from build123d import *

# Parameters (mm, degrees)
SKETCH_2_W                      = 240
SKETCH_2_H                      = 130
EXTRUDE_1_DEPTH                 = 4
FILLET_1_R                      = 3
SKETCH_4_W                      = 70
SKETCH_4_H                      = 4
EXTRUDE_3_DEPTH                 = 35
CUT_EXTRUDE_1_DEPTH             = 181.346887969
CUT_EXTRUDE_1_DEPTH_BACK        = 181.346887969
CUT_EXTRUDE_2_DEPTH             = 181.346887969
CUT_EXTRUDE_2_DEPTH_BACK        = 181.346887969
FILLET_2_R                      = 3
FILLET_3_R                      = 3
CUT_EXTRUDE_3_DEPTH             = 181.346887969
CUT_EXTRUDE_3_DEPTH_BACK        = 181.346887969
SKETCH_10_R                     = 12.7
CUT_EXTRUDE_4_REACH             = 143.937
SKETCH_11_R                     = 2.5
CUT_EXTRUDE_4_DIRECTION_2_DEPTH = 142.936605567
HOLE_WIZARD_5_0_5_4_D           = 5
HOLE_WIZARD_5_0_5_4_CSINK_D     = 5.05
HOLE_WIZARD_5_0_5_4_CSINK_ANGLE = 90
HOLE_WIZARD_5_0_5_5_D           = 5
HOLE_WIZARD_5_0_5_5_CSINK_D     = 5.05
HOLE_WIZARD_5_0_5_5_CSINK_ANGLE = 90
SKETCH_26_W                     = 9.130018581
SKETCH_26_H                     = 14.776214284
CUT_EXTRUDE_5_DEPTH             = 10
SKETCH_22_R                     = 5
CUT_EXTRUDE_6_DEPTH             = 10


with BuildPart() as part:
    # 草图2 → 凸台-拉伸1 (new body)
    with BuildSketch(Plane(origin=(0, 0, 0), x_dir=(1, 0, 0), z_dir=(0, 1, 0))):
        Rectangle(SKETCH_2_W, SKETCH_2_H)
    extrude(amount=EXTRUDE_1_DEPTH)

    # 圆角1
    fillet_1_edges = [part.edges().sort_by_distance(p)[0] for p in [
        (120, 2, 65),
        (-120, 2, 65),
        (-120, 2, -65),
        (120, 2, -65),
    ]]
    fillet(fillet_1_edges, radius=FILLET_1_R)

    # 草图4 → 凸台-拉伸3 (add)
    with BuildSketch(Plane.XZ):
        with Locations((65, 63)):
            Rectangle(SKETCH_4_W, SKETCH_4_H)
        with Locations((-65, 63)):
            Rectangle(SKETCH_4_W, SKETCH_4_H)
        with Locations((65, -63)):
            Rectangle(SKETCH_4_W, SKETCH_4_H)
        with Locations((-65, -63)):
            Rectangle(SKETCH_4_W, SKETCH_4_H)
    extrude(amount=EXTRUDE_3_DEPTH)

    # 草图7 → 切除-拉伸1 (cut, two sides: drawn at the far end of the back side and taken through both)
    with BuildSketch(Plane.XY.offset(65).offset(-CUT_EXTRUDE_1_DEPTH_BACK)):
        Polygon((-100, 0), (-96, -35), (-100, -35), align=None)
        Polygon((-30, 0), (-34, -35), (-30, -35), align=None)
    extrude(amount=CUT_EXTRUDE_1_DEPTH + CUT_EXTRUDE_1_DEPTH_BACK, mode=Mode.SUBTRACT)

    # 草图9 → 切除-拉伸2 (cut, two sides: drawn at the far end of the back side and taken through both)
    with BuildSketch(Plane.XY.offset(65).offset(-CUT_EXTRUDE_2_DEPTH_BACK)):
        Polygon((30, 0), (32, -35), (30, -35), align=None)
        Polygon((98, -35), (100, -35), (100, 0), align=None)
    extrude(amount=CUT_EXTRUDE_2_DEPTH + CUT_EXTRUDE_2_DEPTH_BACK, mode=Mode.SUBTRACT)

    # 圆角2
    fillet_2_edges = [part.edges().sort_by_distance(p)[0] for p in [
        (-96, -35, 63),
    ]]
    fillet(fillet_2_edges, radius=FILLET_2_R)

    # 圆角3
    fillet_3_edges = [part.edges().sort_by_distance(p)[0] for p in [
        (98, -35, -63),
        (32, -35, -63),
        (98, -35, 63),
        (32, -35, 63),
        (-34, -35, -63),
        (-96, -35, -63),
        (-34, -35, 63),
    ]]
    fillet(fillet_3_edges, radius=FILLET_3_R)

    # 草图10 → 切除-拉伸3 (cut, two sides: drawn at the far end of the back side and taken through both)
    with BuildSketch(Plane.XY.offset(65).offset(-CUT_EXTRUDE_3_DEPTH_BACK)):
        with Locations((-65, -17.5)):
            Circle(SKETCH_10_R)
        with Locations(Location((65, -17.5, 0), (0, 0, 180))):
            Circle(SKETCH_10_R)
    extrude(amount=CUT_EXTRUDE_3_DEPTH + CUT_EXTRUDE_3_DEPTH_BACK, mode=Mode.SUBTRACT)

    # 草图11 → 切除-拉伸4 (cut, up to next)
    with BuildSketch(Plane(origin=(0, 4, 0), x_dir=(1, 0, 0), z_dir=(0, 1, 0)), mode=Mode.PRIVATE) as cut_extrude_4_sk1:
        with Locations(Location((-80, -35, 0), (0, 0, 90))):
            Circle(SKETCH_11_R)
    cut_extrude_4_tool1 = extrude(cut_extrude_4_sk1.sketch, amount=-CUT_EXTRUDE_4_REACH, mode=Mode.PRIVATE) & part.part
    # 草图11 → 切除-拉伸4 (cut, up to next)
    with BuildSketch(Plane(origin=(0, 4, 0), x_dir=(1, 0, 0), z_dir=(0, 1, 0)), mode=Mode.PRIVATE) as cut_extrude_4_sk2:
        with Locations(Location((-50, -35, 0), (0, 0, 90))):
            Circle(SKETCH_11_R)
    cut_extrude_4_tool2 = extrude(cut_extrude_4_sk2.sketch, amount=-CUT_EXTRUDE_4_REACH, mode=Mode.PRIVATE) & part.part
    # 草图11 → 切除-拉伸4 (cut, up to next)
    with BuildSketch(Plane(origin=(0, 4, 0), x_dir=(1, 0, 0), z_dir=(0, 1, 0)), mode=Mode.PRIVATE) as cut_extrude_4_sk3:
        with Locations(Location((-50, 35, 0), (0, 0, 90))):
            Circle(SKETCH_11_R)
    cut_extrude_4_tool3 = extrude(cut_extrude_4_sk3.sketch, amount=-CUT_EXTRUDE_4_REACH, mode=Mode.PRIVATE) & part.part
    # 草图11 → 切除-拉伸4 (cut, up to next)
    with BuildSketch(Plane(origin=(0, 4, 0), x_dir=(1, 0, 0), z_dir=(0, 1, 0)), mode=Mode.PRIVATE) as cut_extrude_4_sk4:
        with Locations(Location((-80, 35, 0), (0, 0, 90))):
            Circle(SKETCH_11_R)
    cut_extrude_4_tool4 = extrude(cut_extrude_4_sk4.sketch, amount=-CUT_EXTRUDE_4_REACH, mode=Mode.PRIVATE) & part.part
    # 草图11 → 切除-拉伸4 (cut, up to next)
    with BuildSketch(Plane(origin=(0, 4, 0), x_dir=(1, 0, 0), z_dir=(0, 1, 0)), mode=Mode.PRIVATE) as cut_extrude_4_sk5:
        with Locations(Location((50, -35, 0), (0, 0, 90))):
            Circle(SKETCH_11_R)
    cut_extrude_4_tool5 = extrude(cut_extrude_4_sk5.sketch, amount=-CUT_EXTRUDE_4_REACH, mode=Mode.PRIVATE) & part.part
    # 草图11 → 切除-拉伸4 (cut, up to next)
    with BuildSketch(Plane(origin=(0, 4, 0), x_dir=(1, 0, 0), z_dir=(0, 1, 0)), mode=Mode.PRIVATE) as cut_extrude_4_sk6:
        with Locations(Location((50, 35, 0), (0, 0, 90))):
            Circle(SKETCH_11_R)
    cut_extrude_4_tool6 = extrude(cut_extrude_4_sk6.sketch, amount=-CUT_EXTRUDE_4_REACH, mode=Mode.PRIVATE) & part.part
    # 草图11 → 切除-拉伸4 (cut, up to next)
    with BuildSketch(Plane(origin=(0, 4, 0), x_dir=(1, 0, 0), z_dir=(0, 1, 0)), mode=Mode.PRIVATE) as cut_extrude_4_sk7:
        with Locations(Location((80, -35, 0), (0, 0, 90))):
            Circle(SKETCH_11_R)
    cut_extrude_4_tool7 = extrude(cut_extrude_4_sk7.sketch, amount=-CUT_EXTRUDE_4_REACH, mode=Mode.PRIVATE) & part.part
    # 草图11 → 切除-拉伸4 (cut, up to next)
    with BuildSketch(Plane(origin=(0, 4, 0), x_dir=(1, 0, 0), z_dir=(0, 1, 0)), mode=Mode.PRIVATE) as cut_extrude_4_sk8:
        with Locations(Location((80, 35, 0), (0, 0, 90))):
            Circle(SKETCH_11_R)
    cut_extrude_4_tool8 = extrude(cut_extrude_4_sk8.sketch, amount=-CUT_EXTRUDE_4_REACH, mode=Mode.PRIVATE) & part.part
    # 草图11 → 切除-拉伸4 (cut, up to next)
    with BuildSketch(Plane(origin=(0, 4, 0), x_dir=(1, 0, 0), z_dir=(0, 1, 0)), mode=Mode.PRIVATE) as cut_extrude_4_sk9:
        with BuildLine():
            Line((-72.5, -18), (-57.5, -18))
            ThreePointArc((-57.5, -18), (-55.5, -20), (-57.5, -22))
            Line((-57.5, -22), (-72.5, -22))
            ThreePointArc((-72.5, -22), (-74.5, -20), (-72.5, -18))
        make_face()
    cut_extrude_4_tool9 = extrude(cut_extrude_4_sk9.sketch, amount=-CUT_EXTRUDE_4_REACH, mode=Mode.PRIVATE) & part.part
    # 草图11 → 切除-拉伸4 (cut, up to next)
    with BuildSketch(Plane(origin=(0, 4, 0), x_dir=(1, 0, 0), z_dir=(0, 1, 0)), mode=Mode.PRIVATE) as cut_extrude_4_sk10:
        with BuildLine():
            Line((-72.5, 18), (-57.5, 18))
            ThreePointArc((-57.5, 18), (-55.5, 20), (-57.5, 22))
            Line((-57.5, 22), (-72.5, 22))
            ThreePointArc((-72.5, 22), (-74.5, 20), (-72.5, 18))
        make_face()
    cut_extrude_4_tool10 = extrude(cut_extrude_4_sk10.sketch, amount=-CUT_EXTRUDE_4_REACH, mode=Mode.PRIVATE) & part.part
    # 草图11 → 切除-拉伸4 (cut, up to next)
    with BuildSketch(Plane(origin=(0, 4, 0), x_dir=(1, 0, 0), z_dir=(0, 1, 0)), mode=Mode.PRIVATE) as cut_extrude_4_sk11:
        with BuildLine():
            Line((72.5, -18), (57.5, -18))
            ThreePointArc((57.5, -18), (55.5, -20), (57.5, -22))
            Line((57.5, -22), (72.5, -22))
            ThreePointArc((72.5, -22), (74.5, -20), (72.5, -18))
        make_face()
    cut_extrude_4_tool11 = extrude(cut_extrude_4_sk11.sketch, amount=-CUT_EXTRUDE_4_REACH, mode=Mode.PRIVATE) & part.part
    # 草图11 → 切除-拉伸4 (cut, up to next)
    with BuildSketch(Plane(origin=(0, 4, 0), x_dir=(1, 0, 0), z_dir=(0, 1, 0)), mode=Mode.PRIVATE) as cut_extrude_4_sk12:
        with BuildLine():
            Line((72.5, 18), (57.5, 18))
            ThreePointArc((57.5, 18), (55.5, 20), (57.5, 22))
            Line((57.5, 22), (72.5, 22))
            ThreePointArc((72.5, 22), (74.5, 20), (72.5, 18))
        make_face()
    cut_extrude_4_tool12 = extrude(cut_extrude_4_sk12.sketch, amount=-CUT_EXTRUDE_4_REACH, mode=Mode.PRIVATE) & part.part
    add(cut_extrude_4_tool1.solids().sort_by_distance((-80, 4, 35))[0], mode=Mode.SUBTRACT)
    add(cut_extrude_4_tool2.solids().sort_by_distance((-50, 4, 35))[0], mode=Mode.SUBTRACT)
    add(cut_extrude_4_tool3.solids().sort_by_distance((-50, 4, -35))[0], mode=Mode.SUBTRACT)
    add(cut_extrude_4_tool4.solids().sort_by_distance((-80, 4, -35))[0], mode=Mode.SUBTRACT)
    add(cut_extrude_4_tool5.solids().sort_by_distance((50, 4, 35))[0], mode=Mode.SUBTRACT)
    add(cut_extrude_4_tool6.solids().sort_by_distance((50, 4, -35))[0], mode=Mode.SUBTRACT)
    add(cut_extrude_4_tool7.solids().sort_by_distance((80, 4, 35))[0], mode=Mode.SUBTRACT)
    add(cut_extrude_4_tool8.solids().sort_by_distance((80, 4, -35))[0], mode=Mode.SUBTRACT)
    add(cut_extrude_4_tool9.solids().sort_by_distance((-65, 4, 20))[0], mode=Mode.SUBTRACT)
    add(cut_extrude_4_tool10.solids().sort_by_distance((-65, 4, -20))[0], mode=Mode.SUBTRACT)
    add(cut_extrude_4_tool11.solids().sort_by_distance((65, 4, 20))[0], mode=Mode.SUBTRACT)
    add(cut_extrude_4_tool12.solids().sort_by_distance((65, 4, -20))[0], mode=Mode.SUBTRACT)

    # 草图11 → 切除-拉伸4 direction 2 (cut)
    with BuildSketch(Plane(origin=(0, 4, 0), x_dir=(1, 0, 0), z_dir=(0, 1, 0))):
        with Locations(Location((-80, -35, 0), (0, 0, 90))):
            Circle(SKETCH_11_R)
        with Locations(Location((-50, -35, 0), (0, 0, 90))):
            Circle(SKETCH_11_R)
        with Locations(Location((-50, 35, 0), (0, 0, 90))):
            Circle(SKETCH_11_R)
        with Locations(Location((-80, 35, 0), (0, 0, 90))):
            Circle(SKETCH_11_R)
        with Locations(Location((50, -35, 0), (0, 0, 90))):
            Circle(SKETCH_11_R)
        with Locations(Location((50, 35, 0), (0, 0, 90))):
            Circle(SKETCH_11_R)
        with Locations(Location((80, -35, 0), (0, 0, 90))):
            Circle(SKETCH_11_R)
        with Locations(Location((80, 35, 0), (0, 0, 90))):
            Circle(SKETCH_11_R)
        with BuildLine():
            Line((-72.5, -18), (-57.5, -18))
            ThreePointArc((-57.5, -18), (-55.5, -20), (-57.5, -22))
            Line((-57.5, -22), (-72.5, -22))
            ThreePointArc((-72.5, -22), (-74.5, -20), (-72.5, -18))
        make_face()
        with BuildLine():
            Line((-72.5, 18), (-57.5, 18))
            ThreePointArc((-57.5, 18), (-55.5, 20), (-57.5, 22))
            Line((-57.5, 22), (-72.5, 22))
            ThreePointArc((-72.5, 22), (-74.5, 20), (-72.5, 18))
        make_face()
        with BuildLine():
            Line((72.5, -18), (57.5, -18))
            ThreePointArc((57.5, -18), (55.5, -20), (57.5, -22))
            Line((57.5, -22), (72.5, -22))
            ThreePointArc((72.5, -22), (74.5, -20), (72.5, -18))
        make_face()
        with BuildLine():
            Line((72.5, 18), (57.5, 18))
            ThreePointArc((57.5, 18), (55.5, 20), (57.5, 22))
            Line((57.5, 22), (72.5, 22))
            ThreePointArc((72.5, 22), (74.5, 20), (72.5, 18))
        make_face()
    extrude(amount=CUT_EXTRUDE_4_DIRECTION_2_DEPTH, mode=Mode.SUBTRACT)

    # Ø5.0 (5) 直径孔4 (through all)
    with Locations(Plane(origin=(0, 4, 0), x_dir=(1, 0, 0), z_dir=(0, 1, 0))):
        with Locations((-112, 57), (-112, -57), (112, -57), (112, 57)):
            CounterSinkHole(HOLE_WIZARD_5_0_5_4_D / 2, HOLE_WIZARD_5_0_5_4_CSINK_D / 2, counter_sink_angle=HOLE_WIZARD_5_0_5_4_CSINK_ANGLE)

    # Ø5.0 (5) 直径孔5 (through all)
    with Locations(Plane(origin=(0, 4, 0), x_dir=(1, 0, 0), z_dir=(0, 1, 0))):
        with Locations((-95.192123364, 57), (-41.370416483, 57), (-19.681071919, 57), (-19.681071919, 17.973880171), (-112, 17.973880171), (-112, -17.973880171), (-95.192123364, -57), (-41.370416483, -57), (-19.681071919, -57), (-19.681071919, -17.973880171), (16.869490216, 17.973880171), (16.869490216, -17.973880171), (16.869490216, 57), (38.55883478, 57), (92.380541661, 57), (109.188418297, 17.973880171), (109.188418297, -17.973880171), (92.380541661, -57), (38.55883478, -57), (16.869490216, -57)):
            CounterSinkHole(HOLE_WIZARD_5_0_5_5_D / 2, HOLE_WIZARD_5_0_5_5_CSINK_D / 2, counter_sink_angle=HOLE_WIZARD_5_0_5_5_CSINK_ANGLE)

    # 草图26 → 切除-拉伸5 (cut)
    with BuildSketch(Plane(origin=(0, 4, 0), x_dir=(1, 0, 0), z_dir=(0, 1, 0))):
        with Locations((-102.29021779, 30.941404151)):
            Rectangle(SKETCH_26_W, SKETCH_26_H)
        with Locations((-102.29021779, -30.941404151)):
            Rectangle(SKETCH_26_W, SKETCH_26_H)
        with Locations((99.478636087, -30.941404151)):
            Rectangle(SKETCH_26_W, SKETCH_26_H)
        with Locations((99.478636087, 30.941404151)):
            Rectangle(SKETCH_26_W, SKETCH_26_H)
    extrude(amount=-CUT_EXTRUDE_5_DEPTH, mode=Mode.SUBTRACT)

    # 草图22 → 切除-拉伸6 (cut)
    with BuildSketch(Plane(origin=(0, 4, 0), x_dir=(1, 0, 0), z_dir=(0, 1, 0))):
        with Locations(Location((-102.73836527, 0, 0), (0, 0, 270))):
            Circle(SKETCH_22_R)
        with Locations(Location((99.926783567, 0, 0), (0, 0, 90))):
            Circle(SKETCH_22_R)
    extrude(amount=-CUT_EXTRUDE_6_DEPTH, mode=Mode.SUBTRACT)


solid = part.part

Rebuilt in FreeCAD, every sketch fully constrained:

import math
import FreeCAD as App
import Part
import Sketcher
from FreeCAD import Vector


def edges_at(feature, points):
    """Names of the edges that pass closest to the given points."""
    edges = feature.Shape.Edges
    near = lambda p: min(range(len(edges)), key=lambda i: edges[i].distToShape(Part.Vertex(*p))[0])
    return sorted({f"Edge{near(p) + 1}" for p in points})

doc = App.newDocument("Part")
body = doc.addObject("PartDesign::Body", "Body")

# Sketch on XZ plane
sketch1 = body.newObject("Sketcher::SketchObject", "Sketch")
sketch1.AttachmentSupport = (doc.getObject("XZ_Plane"), [""])
sketch1.MapMode = "FlatFace"
sketch1.addGeometry([
    Part.LineSegment(Vector(-120, -65, 0), Vector(-120, 65, 0)),
    Part.LineSegment(Vector(-120, 65, 0), Vector(120, 65, 0)),
    Part.LineSegment(Vector(120, 65, 0), Vector(120, -65, 0)),
    Part.LineSegment(Vector(120, -65, 0), Vector(-120, -65, 0)),
], False)
sketch1.addConstraint([
    Sketcher.Constraint("Coincident", 0, 2, 1, 1),
    Sketcher.Constraint("Coincident", 1, 2, 2, 1),
    Sketcher.Constraint("Coincident", 2, 2, 3, 1),
    Sketcher.Constraint("Coincident", 3, 2, 0, 1),
    Sketcher.Constraint("Vertical", 0),
    Sketcher.Constraint("Horizontal", 1),
    Sketcher.Constraint("Vertical", 2),
    Sketcher.Constraint("Horizontal", 3),
    Sketcher.Constraint("Symmetric", 0, 2, 2, 2, -1, 1),
    Sketcher.Constraint("DistanceX", 1, 1, 1, 2, 240.0),
    Sketcher.Constraint("DistanceY", 0, 1, 0, 2, 130.0),
])
pad1 = body.newObject("PartDesign::Pad", "Pad")
pad1.Profile = sketch1
pad1.Length = 4
pad1.Reversed = True
doc.recompute()

fillet = body.newObject("PartDesign::Fillet", "Fillet")
fillet.Base = (pad1, edges_at(pad1, [
    (120, 2, 65),
    (-120, 2, 65),
    (-120, 2, -65),
    (120, 2, -65),
]))
fillet.Radius = 3

# Sketch on XZ plane
sketch2 = body.newObject("Sketcher::SketchObject", "Sketch001")
sketch2.AttachmentSupport = (doc.getObject("XZ_Plane"), [""])
sketch2.MapMode = "FlatFace"
sketch2.addGeometry([
    Part.LineSegment(Vector(30, 65, 0), Vector(30, 61, 0)),  # 0
    Part.LineSegment(Vector(30, 61, 0), Vector(100, 61, 0)),  # 1
    Part.LineSegment(Vector(100, 61, 0), Vector(100, 65, 0)),  # 2
    Part.LineSegment(Vector(100, 65, 0), Vector(30, 65, 0)),  # 3
    Part.LineSegment(Vector(-100, 65, 0), Vector(-100, 61, 0)),  # 4
    Part.LineSegment(Vector(-100, 61, 0), Vector(-30, 61, 0)),  # 5
    Part.LineSegment(Vector(-30, 61, 0), Vector(-30, 65, 0)),  # 6
    Part.LineSegment(Vector(-30, 65, 0), Vector(-100, 65, 0)),  # 7
    Part.LineSegment(Vector(30, -61, 0), Vector(30, -65, 0)),  # 8
    Part.LineSegment(Vector(30, -65, 0), Vector(100, -65, 0)),  # 9
    Part.LineSegment(Vector(100, -65, 0), Vector(100, -61, 0)),  # 10
    Part.LineSegment(Vector(100, -61, 0), Vector(30, -61, 0)),  # 11
    Part.LineSegment(Vector(-100, -61, 0), Vector(-100, -65, 0)),  # 12
    Part.LineSegment(Vector(-100, -65, 0), Vector(-30, -65, 0)),  # 13
    Part.LineSegment(Vector(-30, -65, 0), Vector(-30, -61, 0)),  # 14
    Part.LineSegment(Vector(-30, -61, 0), Vector(-100, -61, 0)),  # 15
], False)
sketch2.addConstraint([
    Sketcher.Constraint("Coincident", 0, 2, 1, 1),
    Sketcher.Constraint("Coincident", 1, 2, 2, 1),
    Sketcher.Constraint("Coincident", 2, 2, 3, 1),
    Sketcher.Constraint("Coincident", 3, 2, 0, 1),
    Sketcher.Constraint("Coincident", 4, 2, 5, 1),
    Sketcher.Constraint("Coincident", 5, 2, 6, 1),
    Sketcher.Constraint("Coincident", 6, 2, 7, 1),
    Sketcher.Constraint("Coincident", 7, 2, 4, 1),
    Sketcher.Constraint("Coincident", 8, 2, 9, 1),
    Sketcher.Constraint("Coincident", 9, 2, 10, 1),
    Sketcher.Constraint("Coincident", 10, 2, 11, 1),
    Sketcher.Constraint("Coincident", 11, 2, 8, 1),
    Sketcher.Constraint("Coincident", 12, 2, 13, 1),
    Sketcher.Constraint("Coincident", 13, 2, 14, 1),
    Sketcher.Constraint("Coincident", 14, 2, 15, 1),
    Sketcher.Constraint("Coincident", 15, 2, 12, 1),
    Sketcher.Constraint("Vertical", 0),
    Sketcher.Constraint("Horizontal", 1),
    Sketcher.Constraint("Vertical", 2),
    Sketcher.Constraint("Horizontal", 3),
    Sketcher.Constraint("Vertical", 4),
    Sketcher.Constraint("Horizontal", 5),
    Sketcher.Constraint("Vertical", 6),
    Sketcher.Constraint("Horizontal", 7),
    Sketcher.Constraint("Vertical", 8),
    Sketcher.Constraint("Horizontal", 9),
    Sketcher.Constraint("Vertical", 10),
    Sketcher.Constraint("Horizontal", 11),
    Sketcher.Constraint("Vertical", 12),
    Sketcher.Constraint("Horizontal", 13),
    Sketcher.Constraint("Vertical", 14),
    Sketcher.Constraint("Horizontal", 15),
    Sketcher.Constraint("Symmetric", 6, 2, 8, 2, -1, 1),
    Sketcher.Constraint("Symmetric", 4, 2, 10, 2, -1, 1),
    Sketcher.Constraint("Symmetric", 2, 2, 12, 2, -1, 1),
    Sketcher.Constraint("Symmetric", 0, 2, 14, 2, -1, 1),
    Sketcher.Constraint("Symmetric", 1, 2, 4, 2, -2),
    Sketcher.Constraint("Symmetric", 3, 2, 6, 2, -2),
    Sketcher.Constraint("DistanceX", 1, 1, 1, 2, 70.0),
    Sketcher.Constraint("DistanceY", 0, 2, 0, 1, 4.0),
    Sketcher.Constraint("DistanceX", -1, 1, 0, 2, 30.0),
    Sketcher.Constraint("DistanceY", -1, 1, 0, 2, 61.0),
])
pad2 = body.newObject("PartDesign::Pad", "Pad001")
pad2.Profile = sketch2
pad2.Length = 35

# Sketch on XY plane
sketch3 = body.newObject("Sketcher::SketchObject", "Sketch002")
sketch3.AttachmentSupport = (doc.getObject("XY_Plane"), [""])
sketch3.MapMode = "FlatFace"
sketch3.AttachmentOffset = App.Placement(Vector(0, 0, 65), App.Rotation())
sketch3.addGeometry([
    Part.LineSegment(Vector(-96, -35, 0), Vector(-100, 0, 0)),  # 0
    Part.LineSegment(Vector(-100, 0, 0), Vector(-100, -35, 0)),  # 1
    Part.LineSegment(Vector(-100, -35, 0), Vector(-96, -35, 0)),  # 2
    Part.LineSegment(Vector(-30, 0, 0), Vector(-34, -35, 0)),  # 3
    Part.LineSegment(Vector(-34, -35, 0), Vector(-30, -35, 0)),  # 4
    Part.LineSegment(Vector(-30, -35, 0), Vector(-30, 0, 0)),  # 5
], False)
sketch3.addConstraint([
    Sketcher.Constraint("Coincident", 0, 2, 1, 1),
    Sketcher.Constraint("Coincident", 1, 2, 2, 1),
    Sketcher.Constraint("Coincident", 2, 2, 0, 1),
    Sketcher.Constraint("Coincident", 3, 2, 4, 1),
    Sketcher.Constraint("Coincident", 4, 2, 5, 1),
    Sketcher.Constraint("Coincident", 5, 2, 3, 1),
    Sketcher.Constraint("Vertical", 1),
    Sketcher.Constraint("Horizontal", 2),
    Sketcher.Constraint("Horizontal", 4),
    Sketcher.Constraint("Vertical", 5),
    Sketcher.Constraint("PointOnObject", 0, 2, -1),
    Sketcher.Constraint("PointOnObject", 5, 2, -1),
    Sketcher.Constraint("Horizontal", 2, 2, 3, 2),
    Sketcher.Constraint("Equal", 2, 4),
    Sketcher.Constraint("DistanceX", 2, 1, 2, 2, 4.0),
    Sketcher.Constraint("DistanceY", 1, 2, 1, 1, 35.0),
    Sketcher.Constraint("DistanceX", 0, 2, -1, 1, 100.0),
    Sketcher.Constraint("DistanceX", 3, 2, -1, 1, 34.0),
])
pocket1 = body.newObject("PartDesign::Pocket", "Pocket")
pocket1.Profile = sketch3
pocket1.Type = "ThroughAll"
pocket1.Midplane = True

# Sketch on XY plane
sketch4 = body.newObject("Sketcher::SketchObject", "Sketch003")
sketch4.AttachmentSupport = (doc.getObject("XY_Plane"), [""])
sketch4.MapMode = "FlatFace"
sketch4.AttachmentOffset = App.Placement(Vector(0, 0, 65), App.Rotation())
sketch4.addGeometry([
    Part.LineSegment(Vector(32, -35, 0), Vector(30, 0, 0)),  # 0
    Part.LineSegment(Vector(30, 0, 0), Vector(30, -35, 0)),  # 1
    Part.LineSegment(Vector(30, -35, 0), Vector(32, -35, 0)),  # 2
    Part.LineSegment(Vector(98, -35, 0), Vector(100, -35, 0)),  # 3
    Part.LineSegment(Vector(100, -35, 0), Vector(100, 0, 0)),  # 4
    Part.LineSegment(Vector(100, 0, 0), Vector(98, -35, 0)),  # 5
], False)
sketch4.addConstraint([
    Sketcher.Constraint("Coincident", 0, 2, 1, 1),
    Sketcher.Constraint("Coincident", 1, 2, 2, 1),
    Sketcher.Constraint("Coincident", 2, 2, 0, 1),
    Sketcher.Constraint("Coincident", 3, 2, 4, 1),
    Sketcher.Constraint("Coincident", 4, 2, 5, 1),
    Sketcher.Constraint("Coincident", 5, 2, 3, 1),
    Sketcher.Constraint("Vertical", 1),
    Sketcher.Constraint("Horizontal", 2),
    Sketcher.Constraint("Horizontal", 3),
    Sketcher.Constraint("Vertical", 4),
    Sketcher.Constraint("PointOnObject", 0, 2, -1),
    Sketcher.Constraint("PointOnObject", 4, 2, -1),
    Sketcher.Constraint("Horizontal", 2, 2, 3, 2),
    Sketcher.Constraint("Equal", 2, 3),
    Sketcher.Constraint("DistanceX", 2, 1, 2, 2, 2.0),
    Sketcher.Constraint("DistanceY", 1, 2, 1, 1, 35.0),
    Sketcher.Constraint("DistanceX", -1, 1, 0, 2, 30.0),
    Sketcher.Constraint("DistanceX", -1, 1, 3, 2, 100.0),
])
pocket2 = body.newObject("PartDesign::Pocket", "Pocket001")
pocket2.Profile = sketch4
pocket2.Type = "ThroughAll"
pocket2.Midplane = True
doc.recompute()

fillet2 = body.newObject("PartDesign::Fillet", "Fillet001")
fillet2.Base = (pocket2, edges_at(pocket2, [(-96, -35, 63)]))
fillet2.Radius = 3
doc.recompute()

fillet3 = body.newObject("PartDesign::Fillet", "Fillet002")
fillet3.Base = (fillet2, edges_at(fillet2, [
    (98, -35, -63),
    (32, -35, -63),
    (98, -35, 63),
    (32, -35, 63),
    (-34, -35, -63),
    (-96, -35, -63),
    (-34, -35, 63),
]))
fillet3.Radius = 3

# Sketch on XY plane
sketch5 = body.newObject("Sketcher::SketchObject", "Sketch004")
sketch5.AttachmentSupport = (doc.getObject("XY_Plane"), [""])
sketch5.MapMode = "FlatFace"
sketch5.AttachmentOffset = App.Placement(Vector(0, 0, 65), App.Rotation())
sketch5.addGeometry([
    Part.Circle(Vector(-65, -18, 0), Vector(0, 0, 1), 13),
    Part.Circle(Vector(65, -18, 0), Vector(0, 0, 1), 13),
], False)
sketch5.addConstraint([
    Sketcher.Constraint("Equal", 0, 1),
    Sketcher.Constraint("Symmetric", 0, 3, 1, 3, -2),
    Sketcher.Constraint("Diameter", 0, 25.4),
    Sketcher.Constraint("DistanceX", 0, 3, -1, 1, 65.0),
    Sketcher.Constraint("DistanceY", 0, 3, -1, 1, 17.5),
])
pocket3 = body.newObject("PartDesign::Pocket", "Pocket002")
pocket3.Profile = sketch5
pocket3.Type = "ThroughAll"
pocket3.Midplane = True

# Sketch on XZ plane
sketch6 = body.newObject("Sketcher::SketchObject", "Sketch005")
sketch6.AttachmentSupport = (doc.getObject("XZ_Plane"), [""])
sketch6.MapMode = "FlatFace"
sketch6.AttachmentOffset = App.Placement(Vector(0, 0, -4), App.Rotation())
sketch6.addGeometry(Part.Circle(Vector(-80, 35, 0), Vector(0, 0, 1), 2.5), False)
sketch6.addConstraint([
    Sketcher.Constraint("Diameter", 0, 5.0),
    Sketcher.Constraint("DistanceX", 0, 3, -1, 1, 80.0),
    Sketcher.Constraint("DistanceY", -1, 1, 0, 3, 35.0),
])
pocket4 = body.newObject("PartDesign::Pocket", "Pocket003")
pocket4.Profile = sketch6
pocket4.Type = "UpToFirst"
pocket4.Reversed = True

# Sketch on XZ plane
sketch7 = body.newObject("Sketcher::SketchObject", "Sketch006")
sketch7.AttachmentSupport = (doc.getObject("XZ_Plane"), [""])
sketch7.MapMode = "FlatFace"
sketch7.AttachmentOffset = App.Placement(Vector(0, 0, -4), App.Rotation())
sketch7.addGeometry(Part.Circle(Vector(-50, 35, 0), Vector(0, 0, 1), 2.5), False)
sketch7.addConstraint([
    Sketcher.Constraint("Diameter", 0, 5.0),
    Sketcher.Constraint("DistanceX", 0, 3, -1, 1, 50.0),
    Sketcher.Constraint("DistanceY", -1, 1, 0, 3, 35.0),
])
pocket5 = body.newObject("PartDesign::Pocket", "Pocket004")
pocket5.Profile = sketch7
pocket5.Type = "UpToFirst"
pocket5.Reversed = True

# Sketch on XZ plane
sketch8 = body.newObject("Sketcher::SketchObject", "Sketch007")
sketch8.AttachmentSupport = (doc.getObject("XZ_Plane"), [""])
sketch8.MapMode = "FlatFace"
sketch8.AttachmentOffset = App.Placement(Vector(0, 0, -4), App.Rotation())
sketch8.addGeometry(Part.Circle(Vector(-50, -35, 0), Vector(0, 0, 1), 2.5), False)
sketch8.addConstraint([
    Sketcher.Constraint("Diameter", 0, 5.0),
    Sketcher.Constraint("DistanceX", 0, 3, -1, 1, 50.0),
    Sketcher.Constraint("DistanceY", 0, 3, -1, 1, 35.0),
])
pocket6 = body.newObject("PartDesign::Pocket", "Pocket005")
pocket6.Profile = sketch8
pocket6.Type = "UpToFirst"
pocket6.Reversed = True

# Sketch on XZ plane
sketch9 = body.newObject("Sketcher::SketchObject", "Sketch008")
sketch9.AttachmentSupport = (doc.getObject("XZ_Plane"), [""])
sketch9.MapMode = "FlatFace"
sketch9.AttachmentOffset = App.Placement(Vector(0, 0, -4), App.Rotation())
sketch9.addGeometry(Part.Circle(Vector(-80, -35, 0), Vector(0, 0, 1), 2.5), False)
sketch9.addConstraint([
    Sketcher.Constraint("Diameter", 0, 5.0),
    Sketcher.Constraint("DistanceX", 0, 3, -1, 1, 80.0),
    Sketcher.Constraint("DistanceY", 0, 3, -1, 1, 35.0),
])
pocket7 = body.newObject("PartDesign::Pocket", "Pocket006")
pocket7.Profile = sketch9
pocket7.Type = "UpToFirst"
pocket7.Reversed = True

# Sketch on XZ plane
sketch10 = body.newObject("Sketcher::SketchObject", "Sketch009")
sketch10.AttachmentSupport = (doc.getObject("XZ_Plane"), [""])
sketch10.MapMode = "FlatFace"
sketch10.AttachmentOffset = App.Placement(Vector(0, 0, -4), App.Rotation())
sketch10.addGeometry(Part.Circle(Vector(50, 35, 0), Vector(0, 0, 1), 2.5), False)
sketch10.addConstraint([
    Sketcher.Constraint("Diameter", 0, 5.0),
    Sketcher.Constraint("DistanceX", -1, 1, 0, 3, 50.0),
    Sketcher.Constraint("DistanceY", -1, 1, 0, 3, 35.0),
])
pocket8 = body.newObject("PartDesign::Pocket", "Pocket007")
pocket8.Profile = sketch10
pocket8.Type = "UpToFirst"
pocket8.Reversed = True

# Sketch on XZ plane
sketch11 = body.newObject("Sketcher::SketchObject", "Sketch010")
sketch11.AttachmentSupport = (doc.getObject("XZ_Plane"), [""])
sketch11.MapMode = "FlatFace"
sketch11.AttachmentOffset = App.Placement(Vector(0, 0, -4), App.Rotation())
sketch11.addGeometry(Part.Circle(Vector(50, -35, 0), Vector(0, 0, 1), 2.5), False)
sketch11.addConstraint([
    Sketcher.Constraint("Diameter", 0, 5.0),
    Sketcher.Constraint("DistanceX", -1, 1, 0, 3, 50.0),
    Sketcher.Constraint("DistanceY", 0, 3, -1, 1, 35.0),
])
pocket9 = body.newObject("PartDesign::Pocket", "Pocket008")
pocket9.Profile = sketch11
pocket9.Type = "UpToFirst"
pocket9.Reversed = True

# Sketch on XZ plane
sketch12 = body.newObject("Sketcher::SketchObject", "Sketch011")
sketch12.AttachmentSupport = (doc.getObject("XZ_Plane"), [""])
sketch12.MapMode = "FlatFace"
sketch12.AttachmentOffset = App.Placement(Vector(0, 0, -4), App.Rotation())
sketch12.addGeometry(Part.Circle(Vector(80, 35, 0), Vector(0, 0, 1), 2.5), False)
sketch12.addConstraint([
    Sketcher.Constraint("Diameter", 0, 5.0),
    Sketcher.Constraint("DistanceX", -1, 1, 0, 3, 80.0),
    Sketcher.Constraint("DistanceY", -1, 1, 0, 3, 35.0),
])
pocket10 = body.newObject("PartDesign::Pocket", "Pocket009")
pocket10.Profile = sketch12
pocket10.Type = "UpToFirst"
pocket10.Reversed = True

# Sketch on XZ plane
sketch13 = body.newObject("Sketcher::SketchObject", "Sketch012")
sketch13.AttachmentSupport = (doc.getObject("XZ_Plane"), [""])
sketch13.MapMode = "FlatFace"
sketch13.AttachmentOffset = App.Placement(Vector(0, 0, -4), App.Rotation())
sketch13.addGeometry(Part.Circle(Vector(80, -35, 0), Vector(0, 0, 1), 2.5), False)
sketch13.addConstraint([
    Sketcher.Constraint("Diameter", 0, 5.0),
    Sketcher.Constraint("DistanceX", -1, 1, 0, 3, 80.0),
    Sketcher.Constraint("DistanceY", 0, 3, -1, 1, 35.0),
])
pocket11 = body.newObject("PartDesign::Pocket", "Pocket010")
pocket11.Profile = sketch13
pocket11.Type = "UpToFirst"
pocket11.Reversed = True

# Sketch on XZ plane
sketch14 = body.newObject("Sketcher::SketchObject", "Sketch013")
sketch14.AttachmentSupport = (doc.getObject("XZ_Plane"), [""])
sketch14.MapMode = "FlatFace"
sketch14.AttachmentOffset = App.Placement(Vector(0, 0, -4), App.Rotation())
sketch14.addGeometry([
    Part.LineSegment(Vector(-57.5, 18, 0), Vector(-72.5, 18, 0)),
    Part.ArcOfCircle(Part.Circle(Vector(-72.5, 20, 0), Vector(0, 0, 1), 2), math.radians(90), math.radians(270)),
    Part.LineSegment(Vector(-72.5, 22, 0), Vector(-57.5, 22, 0)),
    Part.ArcOfCircle(Part.Circle(Vector(-57.5, 20, 0), Vector(0, 0, 1), 2), math.radians(-90), math.radians(90)),
], False)
sketch14.addConstraint([
    Sketcher.Constraint("Tangent", 0, 2, 1, 2),
    Sketcher.Constraint("Tangent", 1, 1, 2, 1),
    Sketcher.Constraint("Tangent", 2, 2, 3, 2),
    Sketcher.Constraint("Tangent", 3, 1, 0, 1),
    Sketcher.Constraint("Horizontal", 0),
    Sketcher.Constraint("Horizontal", 2),
    Sketcher.Constraint("Radius", 1, 2.0),
    Sketcher.Constraint("DistanceX", 0, 2, 0, 1, 15.0),
    Sketcher.Constraint("DistanceY", -1, 1, 1, 3, 20.0),
    Sketcher.Constraint("DistanceX", 1, 3, -1, 1, 72.5),
])
pocket12 = body.newObject("PartDesign::Pocket", "Pocket011")
pocket12.Profile = sketch14
pocket12.Type = "UpToFirst"
pocket12.Reversed = True

# Sketch on XZ plane
sketch15 = body.newObject("Sketcher::SketchObject", "Sketch014")
sketch15.AttachmentSupport = (doc.getObject("XZ_Plane"), [""])
sketch15.MapMode = "FlatFace"
sketch15.AttachmentOffset = App.Placement(Vector(0, 0, -4), App.Rotation())
sketch15.addGeometry([
    Part.LineSegment(Vector(-72.5, -18, 0), Vector(-57.5, -18, 0)),
    Part.ArcOfCircle(Part.Circle(Vector(-57.5, -20, 0), Vector(0, 0, 1), 2), math.radians(-90), math.radians(90)),
    Part.LineSegment(Vector(-57.5, -22, 0), Vector(-72.5, -22, 0)),
    Part.ArcOfCircle(Part.Circle(Vector(-72.5, -20, 0), Vector(0, 0, 1), 2), math.radians(90), math.radians(270)),
], False)
sketch15.addConstraint([
    Sketcher.Constraint("Tangent", 0, 2, 1, 2),
    Sketcher.Constraint("Tangent", 1, 1, 2, 1),
    Sketcher.Constraint("Tangent", 2, 2, 3, 2),
    Sketcher.Constraint("Tangent", 3, 1, 0, 1),
    Sketcher.Constraint("Horizontal", 0),
    Sketcher.Constraint("Horizontal", 2),
    Sketcher.Constraint("Radius", 1, 2.0),
    Sketcher.Constraint("DistanceX", 0, 1, 0, 2, 15.0),
    Sketcher.Constraint("DistanceY", 1, 3, -1, 1, 20.0),
    Sketcher.Constraint("DistanceX", 1, 3, -1, 1, 57.5),
])
pocket13 = body.newObject("PartDesign::Pocket", "Pocket012")
pocket13.Profile = sketch15
pocket13.Type = "UpToFirst"
pocket13.Reversed = True

# Sketch on XZ plane
sketch16 = body.newObject("Sketcher::SketchObject", "Sketch015")
sketch16.AttachmentSupport = (doc.getObject("XZ_Plane"), [""])
sketch16.MapMode = "FlatFace"
sketch16.AttachmentOffset = App.Placement(Vector(0, 0, -4), App.Rotation())
sketch16.addGeometry([
    Part.LineSegment(Vector(72.5, 18, 0), Vector(57.5, 18, 0)),
    Part.ArcOfCircle(Part.Circle(Vector(57.5, 20, 0), Vector(0, 0, 1), 2), math.radians(90), math.radians(270)),
    Part.LineSegment(Vector(57.5, 22, 0), Vector(72.5, 22, 0)),
    Part.ArcOfCircle(Part.Circle(Vector(72.5, 20, 0), Vector(0, 0, 1), 2), math.radians(-90), math.radians(90)),
], False)
sketch16.addConstraint([
    Sketcher.Constraint("Tangent", 0, 2, 1, 2),
    Sketcher.Constraint("Tangent", 1, 1, 2, 1),
    Sketcher.Constraint("Tangent", 2, 2, 3, 2),
    Sketcher.Constraint("Tangent", 3, 1, 0, 1),
    Sketcher.Constraint("Horizontal", 0),
    Sketcher.Constraint("Horizontal", 2),
    Sketcher.Constraint("Radius", 1, 2.0),
    Sketcher.Constraint("DistanceX", 0, 2, 0, 1, 15.0),
    Sketcher.Constraint("DistanceY", -1, 1, 1, 3, 20.0),
    Sketcher.Constraint("DistanceX", -1, 1, 1, 3, 57.5),
])
pocket14 = body.newObject("PartDesign::Pocket", "Pocket013")
pocket14.Profile = sketch16
pocket14.Type = "UpToFirst"
pocket14.Reversed = True

# Sketch on XZ plane
sketch17 = body.newObject("Sketcher::SketchObject", "Sketch016")
sketch17.AttachmentSupport = (doc.getObject("XZ_Plane"), [""])
sketch17.MapMode = "FlatFace"
sketch17.AttachmentOffset = App.Placement(Vector(0, 0, -4), App.Rotation())
sketch17.addGeometry([
    Part.LineSegment(Vector(57.5, -18, 0), Vector(72.5, -18, 0)),
    Part.ArcOfCircle(Part.Circle(Vector(72.5, -20, 0), Vector(0, 0, 1), 2), math.radians(-90), math.radians(90)),
    Part.LineSegment(Vector(72.5, -22, 0), Vector(57.5, -22, 0)),
    Part.ArcOfCircle(Part.Circle(Vector(57.5, -20, 0), Vector(0, 0, 1), 2), math.radians(90), math.radians(270)),
], False)
sketch17.addConstraint([
    Sketcher.Constraint("Tangent", 0, 2, 1, 2),
    Sketcher.Constraint("Tangent", 1, 1, 2, 1),
    Sketcher.Constraint("Tangent", 2, 2, 3, 2),
    Sketcher.Constraint("Tangent", 3, 1, 0, 1),
    Sketcher.Constraint("Horizontal", 0),
    Sketcher.Constraint("Horizontal", 2),
    Sketcher.Constraint("Radius", 1, 2.0),
    Sketcher.Constraint("DistanceX", 0, 1, 0, 2, 15.0),
    Sketcher.Constraint("DistanceY", 1, 3, -1, 1, 20.0),
    Sketcher.Constraint("DistanceX", -1, 1, 1, 3, 72.5),
])
pocket15 = body.newObject("PartDesign::Pocket", "Pocket014")
pocket15.Profile = sketch17
pocket15.Type = "UpToFirst"
pocket15.Reversed = True

# Sketch on XZ plane
sketch18 = body.newObject("Sketcher::SketchObject", "Sketch017")
sketch18.AttachmentSupport = (doc.getObject("XZ_Plane"), [""])
sketch18.MapMode = "FlatFace"
sketch18.AttachmentOffset = App.Placement(Vector(0, 0, -4), App.Rotation())
sketch18.addGeometry([
    Part.Circle(Vector(-80, 35, 0), Vector(0, 0, 1), 2.5),  # 0
    Part.Circle(Vector(-50, 35, 0), Vector(0, 0, 1), 2.5),  # 1
    Part.Circle(Vector(-50, -35, 0), Vector(0, 0, 1), 2.5),  # 2
    Part.Circle(Vector(-80, -35, 0), Vector(0, 0, 1), 2.5),  # 3
    Part.Circle(Vector(50, 35, 0), Vector(0, 0, 1), 2.5),  # 4
    Part.Circle(Vector(50, -35, 0), Vector(0, 0, 1), 2.5),  # 5
    Part.Circle(Vector(80, 35, 0), Vector(0, 0, 1), 2.5),  # 6
    Part.Circle(Vector(80, -35, 0), Vector(0, 0, 1), 2.5),  # 7
    Part.LineSegment(Vector(-57.5, 18, 0), Vector(-72.5, 18, 0)),  # 8
    Part.ArcOfCircle(Part.Circle(Vector(-72.5, 20, 0), Vector(0, 0, 1), 2), math.radians(90), math.radians(270)),  # 9
    Part.LineSegment(Vector(-72.5, 22, 0), Vector(-57.5, 22, 0)),  # 10
    Part.ArcOfCircle(Part.Circle(Vector(-57.5, 20, 0), Vector(0, 0, 1), 2), math.radians(-90), math.radians(90)),  # 11
    Part.LineSegment(Vector(-72.5, -18, 0), Vector(-57.5, -18, 0)),  # 12
    Part.ArcOfCircle(Part.Circle(Vector(-57.5, -20, 0), Vector(0, 0, 1), 2), math.radians(-90), math.radians(90)),  # 13
    Part.LineSegment(Vector(-57.5, -22, 0), Vector(-72.5, -22, 0)),  # 14
    Part.ArcOfCircle(Part.Circle(Vector(-72.5, -20, 0), Vector(0, 0, 1), 2), math.radians(90), math.radians(270)),  # 15
    Part.LineSegment(Vector(72.5, 18, 0), Vector(57.5, 18, 0)),  # 16
    Part.ArcOfCircle(Part.Circle(Vector(57.5, 20, 0), Vector(0, 0, 1), 2), math.radians(90), math.radians(270)),  # 17
    Part.LineSegment(Vector(57.5, 22, 0), Vector(72.5, 22, 0)),  # 18
    Part.ArcOfCircle(Part.Circle(Vector(72.5, 20, 0), Vector(0, 0, 1), 2), math.radians(-90), math.radians(90)),  # 19
    Part.LineSegment(Vector(57.5, -18, 0), Vector(72.5, -18, 0)),  # 20
    Part.ArcOfCircle(Part.Circle(Vector(72.5, -20, 0), Vector(0, 0, 1), 2), math.radians(-90), math.radians(90)),  # 21
    Part.LineSegment(Vector(72.5, -22, 0), Vector(57.5, -22, 0)),  # 22
    Part.ArcOfCircle(Part.Circle(Vector(57.5, -20, 0), Vector(0, 0, 1), 2), math.radians(90), math.radians(270)),  # 23
], False)
sketch18.addConstraint([
    Sketcher.Constraint("Tangent", 8, 2, 9, 2),
    Sketcher.Constraint("Tangent", 9, 1, 10, 1),
    Sketcher.Constraint("Tangent", 10, 2, 11, 2),
    Sketcher.Constraint("Tangent", 11, 1, 8, 1),
    Sketcher.Constraint("Tangent", 12, 2, 13, 2),
    Sketcher.Constraint("Tangent", 13, 1, 14, 1),
    Sketcher.Constraint("Tangent", 14, 2, 15, 2),
    Sketcher.Constraint("Tangent", 15, 1, 12, 1),
    Sketcher.Constraint("Tangent", 16, 2, 17, 2),
    Sketcher.Constraint("Tangent", 17, 1, 18, 1),
    Sketcher.Constraint("Tangent", 18, 2, 19, 2),
    Sketcher.Constraint("Tangent", 19, 1, 16, 1),
    Sketcher.Constraint("Tangent", 20, 2, 21, 2),
    Sketcher.Constraint("Tangent", 21, 1, 22, 1),
    Sketcher.Constraint("Tangent", 22, 2, 23, 2),
    Sketcher.Constraint("Tangent", 23, 1, 20, 1),
    Sketcher.Constraint("Horizontal", 8),
    Sketcher.Constraint("Horizontal", 10),
    Sketcher.Constraint("Horizontal", 12),
    Sketcher.Constraint("Horizontal", 14),
    Sketcher.Constraint("Horizontal", 16),
    Sketcher.Constraint("Horizontal", 18),
    Sketcher.Constraint("Horizontal", 20),
    Sketcher.Constraint("Horizontal", 22),
    Sketcher.Constraint("Equal", 0, 1),
    Sketcher.Constraint("Equal", 1, 2),
    Sketcher.Constraint("Equal", 2, 3),
    Sketcher.Constraint("Equal", 3, 4),
    Sketcher.Constraint("Equal", 4, 5),
    Sketcher.Constraint("Equal", 5, 6),
    Sketcher.Constraint("Equal", 6, 7),
    Sketcher.Constraint("Equal", 11, 13),
    Sketcher.Constraint("Equal", 15, 17),
    Sketcher.Constraint("Equal", 19, 21),
    Sketcher.Constraint("Symmetric", 2, 3, 4, 3, -1, 1),
    Sketcher.Constraint("Symmetric", 1, 3, 5, 3, -1, 1),
    Sketcher.Constraint("Symmetric", 3, 3, 6, 3, -1, 1),
    Sketcher.Constraint("Symmetric", 0, 3, 7, 3, -1, 1),
    Sketcher.Constraint("Symmetric", 13, 3, 17, 3, -1, 1),
    Sketcher.Constraint("Symmetric", 9, 3, 21, 3, -1, 1),
    Sketcher.Constraint("Symmetric", 1, 3, 4, 3, -2),
    Sketcher.Constraint("Symmetric", 0, 3, 6, 3, -2),
    Sketcher.Constraint("Symmetric", 11, 3, 17, 3, -2),
    Sketcher.Constraint("Horizontal", 0, 3, 1, 3),
    Sketcher.Constraint("Vertical", 9, 3, 15, 3),
    Sketcher.Constraint("Vertical", 19, 3, 21, 3),
    Sketcher.Constraint("Vertical", 17, 3, 23, 3),
    Sketcher.Constraint("Diameter", 0, 5.0),
    Sketcher.Constraint("Radius", 9, 2.0),
    Sketcher.Constraint("DistanceX", 8, 2, 8, 1, 15.0),
    Sketcher.Constraint("DistanceX", 0, 3, -1, 1, 80.0),
    Sketcher.Constraint("DistanceY", -1, 1, 0, 3, 35.0),
    Sketcher.Constraint("DistanceX", 1, 3, -1, 1, 50.0),
    Sketcher.Constraint("DistanceY", -1, 1, 9, 3, 20.0),
    Sketcher.Constraint("DistanceX", 9, 3, -1, 1, 72.5),
])
pocket16 = body.newObject("PartDesign::Pocket", "Pocket015")
pocket16.Profile = sketch18
pocket16.Length = 142.936606

# Sketch on XZ plane
sketch19 = body.newObject("Sketcher::SketchObject", "Sketch018")
sketch19.AttachmentSupport = (doc.getObject("XZ_Plane"), [""])
sketch19.MapMode = "FlatFace"
sketch19.AttachmentOffset = App.Placement(Vector(0, 0, -4), App.Rotation())
sketch19.addGeometry([
    Part.Circle(Vector(-112, -57, 0), Vector(0, 0, 1), 2.5),
    Part.Circle(Vector(-112, 57, 0), Vector(0, 0, 1), 2.5),
    Part.Circle(Vector(112, 57, 0), Vector(0, 0, 1), 2.5),
    Part.Circle(Vector(112, -57, 0), Vector(0, 0, 1), 2.5),
], False)
sketch19.addConstraint([
    Sketcher.Constraint("Equal", 0, 1),
    Sketcher.Constraint("Equal", 1, 2),
    Sketcher.Constraint("Equal", 2, 3),
    Sketcher.Constraint("Symmetric", 0, 3, 2, 3, -1, 1),
    Sketcher.Constraint("Symmetric", 1, 3, 3, 3, -1, 1),
    Sketcher.Constraint("Symmetric", 1, 3, 2, 3, -2),
    Sketcher.Constraint("Diameter", 0, 5.0),
    Sketcher.Constraint("DistanceX", 0, 3, -1, 1, 112.0),
    Sketcher.Constraint("DistanceY", 0, 3, -1, 1, 57.0),
])
doc.recompute()
hole = body.newObject("PartDesign::Hole", "Hole")
hole.Profile = sketch19
hole.ThreadType = "None"
hole.Diameter = 5
hole.DepthType = "ThroughAll"
hole.HoleCutType = "Countersink"
hole.HoleCutDiameter = 5.05
hole.HoleCutCountersinkAngle = 90
hole.Reversed = True

# Sketch on XZ plane
sketch20 = body.newObject("Sketcher::SketchObject", "Sketch019")
sketch20.AttachmentSupport = (doc.getObject("XZ_Plane"), [""])
sketch20.MapMode = "FlatFace"
sketch20.AttachmentOffset = App.Placement(Vector(0, 0, -4), App.Rotation())
sketch20.addGeometry([
    Part.Circle(Vector(-95.2, -57, 0), Vector(0, 0, 1), 2.5),  # 0
    Part.Circle(Vector(-41.4, -57, 0), Vector(0, 0, 1), 2.5),  # 1
    Part.Circle(Vector(-19.7, -57, 0), Vector(0, 0, 1), 2.5),  # 2
    Part.Circle(Vector(-19.7, -18, 0), Vector(0, 0, 1), 2.5),  # 3
    Part.Circle(Vector(-112, -18, 0), Vector(0, 0, 1), 2.5),  # 4
    Part.Circle(Vector(-112, 18, 0), Vector(0, 0, 1), 2.5),  # 5
    Part.Circle(Vector(-95.2, 57, 0), Vector(0, 0, 1), 2.5),  # 6
    Part.Circle(Vector(-41.4, 57, 0), Vector(0, 0, 1), 2.5),  # 7
    Part.Circle(Vector(-19.7, 57, 0), Vector(0, 0, 1), 2.5),  # 8
    Part.Circle(Vector(-19.7, 18, 0), Vector(0, 0, 1), 2.5),  # 9
    Part.Circle(Vector(16.9, -18, 0), Vector(0, 0, 1), 2.5),  # 10
    Part.Circle(Vector(16.9, 18, 0), Vector(0, 0, 1), 2.5),  # 11
    Part.Circle(Vector(16.9, -57, 0), Vector(0, 0, 1), 2.5),  # 12
    Part.Circle(Vector(38.6, -57, 0), Vector(0, 0, 1), 2.5),  # 13
    Part.Circle(Vector(92.4, -57, 0), Vector(0, 0, 1), 2.5),  # 14
    Part.Circle(Vector(109.2, -18, 0), Vector(0, 0, 1), 2.5),  # 15
    Part.Circle(Vector(109.2, 18, 0), Vector(0, 0, 1), 2.5),  # 16
    Part.Circle(Vector(92.4, 57, 0), Vector(0, 0, 1), 2.5),  # 17
    Part.Circle(Vector(38.6, 57, 0), Vector(0, 0, 1), 2.5),  # 18
    Part.Circle(Vector(16.9, 57, 0), Vector(0, 0, 1), 2.5),  # 19
], False)
sketch20.addConstraint([
    Sketcher.Constraint("Equal", 0, 1),
    Sketcher.Constraint("Equal", 1, 2),
    Sketcher.Constraint("Equal", 2, 3),
    Sketcher.Constraint("Equal", 3, 4),
    Sketcher.Constraint("Equal", 4, 5),
    Sketcher.Constraint("Equal", 5, 6),
    Sketcher.Constraint("Equal", 6, 7),
    Sketcher.Constraint("Equal", 7, 8),
    Sketcher.Constraint("Equal", 8, 9),
    Sketcher.Constraint("Equal", 9, 10),
    Sketcher.Constraint("Equal", 10, 11),
    Sketcher.Constraint("Equal", 11, 12),
    Sketcher.Constraint("Equal", 12, 13),
    Sketcher.Constraint("Equal", 13, 14),
    Sketcher.Constraint("Equal", 14, 15),
    Sketcher.Constraint("Equal", 15, 16),
    Sketcher.Constraint("Equal", 16, 17),
    Sketcher.Constraint("Equal", 17, 18),
    Sketcher.Constraint("Equal", 18, 19),
    Sketcher.Constraint("Symmetric", 4, 3, 5, 3, -1),
    Sketcher.Constraint("Symmetric", 0, 3, 6, 3, -1),
    Sketcher.Constraint("Symmetric", 1, 3, 7, 3, -1),
    Sketcher.Constraint("Symmetric", 2, 3, 8, 3, -1),
    Sketcher.Constraint("Symmetric", 3, 3, 9, 3, -1),
    Sketcher.Constraint("Symmetric", 10, 3, 11, 3, -1),
    Sketcher.Constraint("Symmetric", 15, 3, 16, 3, -1),
    Sketcher.Constraint("Symmetric", 14, 3, 17, 3, -1),
    Sketcher.Constraint("Symmetric", 13, 3, 18, 3, -1),
    Sketcher.Constraint("Symmetric", 12, 3, 19, 3, -1),
    Sketcher.Constraint("Horizontal", 0, 3, 1, 3),
    Sketcher.Constraint("Horizontal", 1, 3, 2, 3),
    Sketcher.Constraint("Horizontal", 3, 3, 4, 3),
    Sketcher.Constraint("Horizontal", 4, 3, 10, 3),
    Sketcher.Constraint("Horizontal", 2, 3, 12, 3),
    Sketcher.Constraint("Horizontal", 12, 3, 13, 3),
    Sketcher.Constraint("Horizontal", 13, 3, 14, 3),
    Sketcher.Constraint("Horizontal", 10, 3, 15, 3),
    Sketcher.Constraint("Vertical", 2, 3, 3, 3),
    Sketcher.Constraint("Vertical", 11, 3, 12, 3),
    Sketcher.Constraint("Diameter", 0, 5.0),
    Sketcher.Constraint("DistanceY", 0, 3, -1, 1, 57.0),
    Sketcher.Constraint("DistanceX", 4, 3, -1, 1, 112.0),
    Sketcher.Constraint("DistanceX", 2, 3, -1, 1, 19.681072),
    Sketcher.Constraint("DistanceY", 3, 3, -1, 1, 17.97388),
    Sketcher.Constraint("DistanceX", -1, 1, 10, 3, 16.86949),
    Sketcher.Constraint("DistanceX", -1, 1, 14, 3, 92.380542),
    Sketcher.Constraint("DistanceX", -1, 1, 15, 3, 109.188418),
    Sketcher.Constraint("DistanceX", 0, 3, 2, 3, 75.511051),
    Sketcher.Constraint("DistanceX", 1, 3, -1, 1, 41.370416),
    Sketcher.Constraint("DistanceX", -1, 1, 13, 3, 38.558835),
])
doc.recompute()
hole2 = body.newObject("PartDesign::Hole", "Hole001")
hole2.Profile = sketch20
hole2.ThreadType = "None"
hole2.Diameter = 5
hole2.DepthType = "ThroughAll"
hole2.HoleCutType = "Countersink"
hole2.HoleCutDiameter = 5.05
hole2.HoleCutCountersinkAngle = 90
hole2.Reversed = True

# Sketch on XZ plane
sketch21 = body.newObject("Sketcher::SketchObject", "Sketch020")
sketch21.AttachmentSupport = (doc.getObject("XZ_Plane"), [""])
sketch21.MapMode = "FlatFace"
sketch21.AttachmentOffset = App.Placement(Vector(0, 0, -4), App.Rotation())
sketch21.addGeometry([
    Part.LineSegment(Vector(-107, -38, 0), Vector(-107, -24, 0)),  # 0
    Part.LineSegment(Vector(-107, -24, 0), Vector(-98, -24, 0)),  # 1
    Part.LineSegment(Vector(-98, -24, 0), Vector(-98, -38, 0)),  # 2
    Part.LineSegment(Vector(-98, -38, 0), Vector(-107, -38, 0)),  # 3
    Part.LineSegment(Vector(-107, 24, 0), Vector(-107, 38, 0)),  # 4
    Part.LineSegment(Vector(-107, 38, 0), Vector(-98, 38, 0)),  # 5
    Part.LineSegment(Vector(-98, 38, 0), Vector(-98, 24, 0)),  # 6
    Part.LineSegment(Vector(-98, 24, 0), Vector(-107, 24, 0)),  # 7
    Part.LineSegment(Vector(95, 24, 0), Vector(95, 38, 0)),  # 8
    Part.LineSegment(Vector(95, 38, 0), Vector(104, 38, 0)),  # 9
    Part.LineSegment(Vector(104, 38, 0), Vector(104, 24, 0)),  # 10
    Part.LineSegment(Vector(104, 24, 0), Vector(95, 24, 0)),  # 11
    Part.LineSegment(Vector(95, -38, 0), Vector(95, -24, 0)),  # 12
    Part.LineSegment(Vector(95, -24, 0), Vector(104, -24, 0)),  # 13
    Part.LineSegment(Vector(104, -24, 0), Vector(104, -38, 0)),  # 14
    Part.LineSegment(Vector(104, -38, 0), Vector(95, -38, 0)),  # 15
], False)
sketch21.addConstraint([
    Sketcher.Constraint("Coincident", 0, 2, 1, 1),
    Sketcher.Constraint("Coincident", 1, 2, 2, 1),
    Sketcher.Constraint("Coincident", 2, 2, 3, 1),
    Sketcher.Constraint("Coincident", 3, 2, 0, 1),
    Sketcher.Constraint("Coincident", 4, 2, 5, 1),
    Sketcher.Constraint("Coincident", 5, 2, 6, 1),
    Sketcher.Constraint("Coincident", 6, 2, 7, 1),
    Sketcher.Constraint("Coincident", 7, 2, 4, 1),
    Sketcher.Constraint("Coincident", 8, 2, 9, 1),
    Sketcher.Constraint("Coincident", 9, 2, 10, 1),
    Sketcher.Constraint("Coincident", 10, 2, 11, 1),
    Sketcher.Constraint("Coincident", 11, 2, 8, 1),
    Sketcher.Constraint("Coincident", 12, 2, 13, 1),
    Sketcher.Constraint("Coincident", 13, 2, 14, 1),
    Sketcher.Constraint("Coincident", 14, 2, 15, 1),
    Sketcher.Constraint("Coincident", 15, 2, 12, 1),
    Sketcher.Constraint("Vertical", 0),
    Sketcher.Constraint("Horizontal", 1),
    Sketcher.Constraint("Vertical", 2),
    Sketcher.Constraint("Horizontal", 3),
    Sketcher.Constraint("Vertical", 4),
    Sketcher.Constraint("Horizontal", 5),
    Sketcher.Constraint("Vertical", 6),
    Sketcher.Constraint("Horizontal", 7),
    Sketcher.Constraint("Vertical", 8),
    Sketcher.Constraint("Horizontal", 9),
    Sketcher.Constraint("Vertical", 10),
    Sketcher.Constraint("Horizontal", 11),
    Sketcher.Constraint("Vertical", 12),
    Sketcher.Constraint("Horizontal", 13),
    Sketcher.Constraint("Vertical", 14),
    Sketcher.Constraint("Horizontal", 15),
    Sketcher.Constraint("Symmetric", 3, 2, 4, 2, -1),
    Sketcher.Constraint("Symmetric", 1, 2, 6, 2, -1),
    Sketcher.Constraint("Symmetric", 11, 2, 12, 2, -1),
    Sketcher.Constraint("Symmetric", 9, 2, 14, 2, -1),
    Sketcher.Constraint("Horizontal", 5, 2, 8, 2),
    Sketcher.Constraint("Horizontal", 7, 2, 10, 2),
    Sketcher.Constraint("Equal", 7, 9),
    Sketcher.Constraint("DistanceX", 1, 1, 1, 2, 9.130019),
    Sketcher.Constraint("DistanceY", 0, 1, 0, 2, 14.776214),
    Sketcher.Constraint("DistanceX", 1, 2, -1, 1, 97.725208),
    Sketcher.Constraint("DistanceY", 2, 2, -1, 1, 38.329511),
    Sketcher.Constraint("DistanceX", -1, 1, 8, 2, 94.913627),
])
pocket17 = body.newObject("PartDesign::Pocket", "Pocket016")
pocket17.Profile = sketch21
pocket17.Length = 10
pocket17.Reversed = True

# Sketch on XZ plane
sketch22 = body.newObject("Sketcher::SketchObject", "Sketch021")
sketch22.AttachmentSupport = (doc.getObject("XZ_Plane"), [""])
sketch22.MapMode = "FlatFace"
sketch22.AttachmentOffset = App.Placement(Vector(0, 0, -4), App.Rotation())
sketch22.addGeometry([
    Part.Circle(Vector(-103, 0, 0), Vector(0, 0, 1), 5),
    Part.Circle(Vector(100, 0, 0), Vector(0, 0, 1), 5),
], False)
sketch22.addConstraint([
    Sketcher.Constraint("Equal", 0, 1),
    Sketcher.Constraint("PointOnObject", 0, 3, -1),
    Sketcher.Constraint("PointOnObject", 1, 3, -1),
    Sketcher.Constraint("Diameter", 0, 10.0),
    Sketcher.Constraint("DistanceX", 0, 3, 1, 3, 202.665149),
    Sketcher.Constraint("DistanceX", 0, 3, -1, 1, 102.738365),
])
pocket18 = body.newObject("PartDesign::Pocket", "Pocket017")
pocket18.Profile = sketch22
pocket18.Length = 10
pocket18.Reversed = True

doc.recompute()
